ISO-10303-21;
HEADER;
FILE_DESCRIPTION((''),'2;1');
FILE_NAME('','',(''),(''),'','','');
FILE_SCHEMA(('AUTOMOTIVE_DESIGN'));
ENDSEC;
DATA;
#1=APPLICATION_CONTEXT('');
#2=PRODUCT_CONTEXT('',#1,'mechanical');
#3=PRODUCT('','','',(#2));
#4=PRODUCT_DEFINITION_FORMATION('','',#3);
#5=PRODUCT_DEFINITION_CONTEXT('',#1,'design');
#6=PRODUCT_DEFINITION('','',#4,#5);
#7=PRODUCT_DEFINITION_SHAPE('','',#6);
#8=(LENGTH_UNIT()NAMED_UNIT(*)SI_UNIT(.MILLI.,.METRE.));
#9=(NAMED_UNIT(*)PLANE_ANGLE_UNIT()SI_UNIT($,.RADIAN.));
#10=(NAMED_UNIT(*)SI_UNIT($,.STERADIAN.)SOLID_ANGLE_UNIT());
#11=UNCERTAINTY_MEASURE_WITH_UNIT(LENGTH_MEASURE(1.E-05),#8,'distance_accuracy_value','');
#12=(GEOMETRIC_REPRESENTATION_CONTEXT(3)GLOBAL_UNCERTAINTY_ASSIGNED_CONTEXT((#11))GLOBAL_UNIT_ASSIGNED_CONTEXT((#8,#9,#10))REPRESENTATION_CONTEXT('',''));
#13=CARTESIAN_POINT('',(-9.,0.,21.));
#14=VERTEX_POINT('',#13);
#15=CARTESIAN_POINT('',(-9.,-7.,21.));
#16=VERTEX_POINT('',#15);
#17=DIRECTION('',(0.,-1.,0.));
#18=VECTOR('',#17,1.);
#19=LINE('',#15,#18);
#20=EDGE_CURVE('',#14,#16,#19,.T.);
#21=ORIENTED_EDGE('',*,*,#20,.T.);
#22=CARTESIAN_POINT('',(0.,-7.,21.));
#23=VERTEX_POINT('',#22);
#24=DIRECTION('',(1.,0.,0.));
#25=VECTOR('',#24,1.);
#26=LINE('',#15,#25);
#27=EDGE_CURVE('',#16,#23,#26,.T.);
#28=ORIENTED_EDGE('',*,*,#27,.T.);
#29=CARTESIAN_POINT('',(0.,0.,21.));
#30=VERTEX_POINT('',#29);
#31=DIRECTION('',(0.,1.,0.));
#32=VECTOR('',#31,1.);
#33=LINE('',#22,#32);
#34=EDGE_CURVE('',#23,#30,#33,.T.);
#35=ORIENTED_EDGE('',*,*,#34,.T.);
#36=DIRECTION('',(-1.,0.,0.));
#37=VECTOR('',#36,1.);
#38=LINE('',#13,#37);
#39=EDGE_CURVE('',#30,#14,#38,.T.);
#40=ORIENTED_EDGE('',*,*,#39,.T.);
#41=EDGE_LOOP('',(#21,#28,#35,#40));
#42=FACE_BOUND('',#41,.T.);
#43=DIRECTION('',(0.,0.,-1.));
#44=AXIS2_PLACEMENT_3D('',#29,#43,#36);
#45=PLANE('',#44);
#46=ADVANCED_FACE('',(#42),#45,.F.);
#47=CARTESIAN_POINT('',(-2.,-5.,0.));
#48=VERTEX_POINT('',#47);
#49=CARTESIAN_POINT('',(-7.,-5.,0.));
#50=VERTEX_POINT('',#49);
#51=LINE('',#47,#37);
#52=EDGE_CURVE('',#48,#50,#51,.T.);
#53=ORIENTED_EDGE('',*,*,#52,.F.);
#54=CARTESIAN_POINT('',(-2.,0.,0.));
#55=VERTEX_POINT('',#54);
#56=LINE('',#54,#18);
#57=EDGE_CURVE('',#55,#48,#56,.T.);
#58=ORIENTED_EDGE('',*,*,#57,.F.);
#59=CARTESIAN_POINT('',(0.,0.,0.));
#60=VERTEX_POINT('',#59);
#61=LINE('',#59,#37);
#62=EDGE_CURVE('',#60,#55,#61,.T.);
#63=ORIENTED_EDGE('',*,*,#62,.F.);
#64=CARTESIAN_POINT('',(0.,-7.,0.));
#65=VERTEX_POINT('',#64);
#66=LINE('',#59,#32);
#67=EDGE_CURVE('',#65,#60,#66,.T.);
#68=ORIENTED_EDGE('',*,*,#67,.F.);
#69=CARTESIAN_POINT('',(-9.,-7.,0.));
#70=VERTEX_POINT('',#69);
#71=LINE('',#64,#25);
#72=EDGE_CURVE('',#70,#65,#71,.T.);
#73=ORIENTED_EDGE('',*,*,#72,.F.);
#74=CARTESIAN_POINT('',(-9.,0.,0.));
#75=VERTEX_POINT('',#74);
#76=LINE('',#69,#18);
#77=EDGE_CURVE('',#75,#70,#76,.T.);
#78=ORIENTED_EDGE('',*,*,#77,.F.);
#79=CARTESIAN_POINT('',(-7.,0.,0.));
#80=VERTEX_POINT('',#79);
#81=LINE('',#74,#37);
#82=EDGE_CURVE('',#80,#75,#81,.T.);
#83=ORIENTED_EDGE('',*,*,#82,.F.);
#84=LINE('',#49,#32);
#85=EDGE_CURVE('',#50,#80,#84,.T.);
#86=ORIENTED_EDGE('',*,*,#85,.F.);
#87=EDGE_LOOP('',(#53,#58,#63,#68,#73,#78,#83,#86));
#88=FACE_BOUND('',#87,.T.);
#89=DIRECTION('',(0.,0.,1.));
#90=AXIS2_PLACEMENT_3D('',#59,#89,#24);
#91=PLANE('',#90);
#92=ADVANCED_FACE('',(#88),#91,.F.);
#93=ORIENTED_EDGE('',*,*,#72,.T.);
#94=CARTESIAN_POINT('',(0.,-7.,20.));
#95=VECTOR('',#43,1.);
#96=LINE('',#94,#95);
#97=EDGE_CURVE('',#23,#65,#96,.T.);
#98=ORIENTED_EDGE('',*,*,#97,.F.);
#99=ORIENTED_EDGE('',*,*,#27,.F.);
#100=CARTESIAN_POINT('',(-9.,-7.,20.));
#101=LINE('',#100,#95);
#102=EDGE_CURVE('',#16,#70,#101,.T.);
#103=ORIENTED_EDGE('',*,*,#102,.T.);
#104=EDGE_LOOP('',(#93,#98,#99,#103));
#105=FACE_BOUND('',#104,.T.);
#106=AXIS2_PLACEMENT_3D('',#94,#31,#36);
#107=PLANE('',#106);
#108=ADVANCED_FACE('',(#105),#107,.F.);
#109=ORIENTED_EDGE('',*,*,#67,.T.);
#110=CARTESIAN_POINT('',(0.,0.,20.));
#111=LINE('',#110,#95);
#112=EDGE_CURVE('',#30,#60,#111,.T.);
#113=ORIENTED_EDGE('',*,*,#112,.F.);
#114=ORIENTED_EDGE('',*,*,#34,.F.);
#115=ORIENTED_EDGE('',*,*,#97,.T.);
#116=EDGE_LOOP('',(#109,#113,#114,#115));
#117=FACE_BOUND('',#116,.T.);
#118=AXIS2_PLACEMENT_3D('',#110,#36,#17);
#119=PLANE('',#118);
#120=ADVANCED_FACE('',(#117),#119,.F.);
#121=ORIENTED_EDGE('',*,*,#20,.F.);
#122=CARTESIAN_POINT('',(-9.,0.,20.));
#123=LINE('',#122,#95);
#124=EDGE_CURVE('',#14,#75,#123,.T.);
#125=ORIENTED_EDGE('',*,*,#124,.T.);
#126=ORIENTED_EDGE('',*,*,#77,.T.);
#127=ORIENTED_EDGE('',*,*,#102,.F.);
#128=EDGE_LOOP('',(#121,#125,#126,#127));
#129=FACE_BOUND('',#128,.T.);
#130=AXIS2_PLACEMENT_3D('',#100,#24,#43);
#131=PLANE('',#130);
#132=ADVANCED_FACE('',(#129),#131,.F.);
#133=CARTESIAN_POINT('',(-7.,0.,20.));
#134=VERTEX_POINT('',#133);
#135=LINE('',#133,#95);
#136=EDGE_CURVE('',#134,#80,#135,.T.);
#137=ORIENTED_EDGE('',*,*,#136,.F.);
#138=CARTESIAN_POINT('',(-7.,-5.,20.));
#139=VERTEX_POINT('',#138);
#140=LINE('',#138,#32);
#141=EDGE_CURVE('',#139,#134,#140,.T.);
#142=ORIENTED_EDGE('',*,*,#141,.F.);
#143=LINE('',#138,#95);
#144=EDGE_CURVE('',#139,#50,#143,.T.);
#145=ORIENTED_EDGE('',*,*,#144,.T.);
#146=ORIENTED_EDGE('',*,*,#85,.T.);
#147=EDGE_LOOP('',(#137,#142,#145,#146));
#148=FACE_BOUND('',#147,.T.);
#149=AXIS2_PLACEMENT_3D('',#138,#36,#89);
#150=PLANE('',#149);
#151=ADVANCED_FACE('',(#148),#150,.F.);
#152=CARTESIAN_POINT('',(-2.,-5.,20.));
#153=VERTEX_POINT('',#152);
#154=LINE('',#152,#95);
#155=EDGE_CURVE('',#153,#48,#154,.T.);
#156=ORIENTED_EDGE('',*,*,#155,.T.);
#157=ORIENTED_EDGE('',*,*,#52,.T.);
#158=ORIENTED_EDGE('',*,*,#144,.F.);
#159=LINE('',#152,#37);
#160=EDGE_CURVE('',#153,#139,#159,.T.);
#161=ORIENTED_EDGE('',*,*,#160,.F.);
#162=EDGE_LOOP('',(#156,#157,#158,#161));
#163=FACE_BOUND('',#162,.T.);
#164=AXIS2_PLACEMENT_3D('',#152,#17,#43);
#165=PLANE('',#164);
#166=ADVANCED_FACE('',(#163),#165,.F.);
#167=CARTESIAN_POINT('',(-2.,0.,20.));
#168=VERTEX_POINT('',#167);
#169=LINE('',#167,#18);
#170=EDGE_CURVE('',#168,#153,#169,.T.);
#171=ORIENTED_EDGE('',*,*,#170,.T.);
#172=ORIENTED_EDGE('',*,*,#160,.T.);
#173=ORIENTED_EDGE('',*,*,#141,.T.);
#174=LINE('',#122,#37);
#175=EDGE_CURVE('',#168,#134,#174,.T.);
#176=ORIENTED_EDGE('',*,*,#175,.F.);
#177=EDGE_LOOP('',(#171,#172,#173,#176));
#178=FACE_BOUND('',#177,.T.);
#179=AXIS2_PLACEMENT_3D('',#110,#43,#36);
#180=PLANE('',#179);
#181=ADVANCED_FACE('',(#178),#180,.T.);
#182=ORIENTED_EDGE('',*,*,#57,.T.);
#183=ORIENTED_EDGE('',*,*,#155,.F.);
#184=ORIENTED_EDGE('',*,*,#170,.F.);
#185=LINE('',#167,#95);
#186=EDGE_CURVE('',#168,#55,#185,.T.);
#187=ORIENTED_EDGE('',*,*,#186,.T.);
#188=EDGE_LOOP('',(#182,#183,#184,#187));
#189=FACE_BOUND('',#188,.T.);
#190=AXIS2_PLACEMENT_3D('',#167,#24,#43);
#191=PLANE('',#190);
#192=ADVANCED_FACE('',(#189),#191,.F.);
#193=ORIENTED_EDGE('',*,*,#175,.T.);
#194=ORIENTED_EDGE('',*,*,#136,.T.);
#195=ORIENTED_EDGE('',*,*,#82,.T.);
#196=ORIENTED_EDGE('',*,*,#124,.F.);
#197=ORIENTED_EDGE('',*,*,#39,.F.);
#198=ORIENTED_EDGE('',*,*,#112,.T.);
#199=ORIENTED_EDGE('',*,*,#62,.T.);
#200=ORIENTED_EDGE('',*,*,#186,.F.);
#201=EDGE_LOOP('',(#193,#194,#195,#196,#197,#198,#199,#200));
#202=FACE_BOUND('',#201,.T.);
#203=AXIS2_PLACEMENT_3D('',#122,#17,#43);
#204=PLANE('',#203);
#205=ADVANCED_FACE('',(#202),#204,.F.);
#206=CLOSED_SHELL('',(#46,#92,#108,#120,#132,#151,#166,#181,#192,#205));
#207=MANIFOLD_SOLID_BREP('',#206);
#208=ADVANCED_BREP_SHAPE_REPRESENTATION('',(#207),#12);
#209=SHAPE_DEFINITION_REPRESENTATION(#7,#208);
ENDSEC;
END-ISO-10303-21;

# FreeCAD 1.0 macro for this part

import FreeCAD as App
import Part
import Sketcher

doc = App.newDocument("Part")
params = doc.addObject("Spreadsheet::Sheet", "Params")
for row, (alias, value) in enumerate([
    ("sketch1_width", "2 mm"),
    ("sketch1_width2", "5 mm"),
    ("sketch1_height", "7 mm"),
    ("pad1_length", "20 mm"),
    ("sketch2_width", "9 mm"),
    ("sketch2_height", "7 mm"),
    ("pad2_length", "1 mm"),
], start=1):
    params.set(f"A{row}", alias)
    params.set(f"B{row}", "=" + value)
    params.setAlias(f"B{row}", alias)

body = doc.addObject("PartDesign::Body", "Body")

sketch1 = doc.addObject("Sketcher::SketchObject", "Sketch")
body.addObject(sketch1)
sketch1.AttachmentSupport = (doc.XY_Plane, [""])
sketch1.MapMode = "FlatFace"
sketch1.addGeometry([
    Part.LineSegment(App.Vector(0, -7, 0), App.Vector(0, 0, 0)),
    Part.LineSegment(App.Vector(0, 0, 0), App.Vector(-2, 0, 0)),
    Part.LineSegment(App.Vector(-2, 0, 0), App.Vector(-2, -5, 0)),
    Part.LineSegment(App.Vector(-2, -5, 0), App.Vector(-7, -5, 0)),
    Part.LineSegment(App.Vector(-7, -5, 0), App.Vector(-7, 0, 0)),
    Part.LineSegment(App.Vector(-7, 0, 0), App.Vector(-9, 0, 0)),
    Part.LineSegment(App.Vector(-9, 0, 0), App.Vector(-9, -7, 0)),
    Part.LineSegment(App.Vector(-9, -7, 0), App.Vector(0, -7, 0)),
], False)
sketch1.addConstraint([
    Sketcher.Constraint("Coincident", 0, 2, 1, 1),
    Sketcher.Constraint("Coincident", 1, 2, 2, 1),
    Sketcher.Constraint("Coincident", 2, 2, 3, 1),
    Sketcher.Constraint("Coincident", 3, 2, 4, 1),
    Sketcher.Constraint("Coincident", 4, 2, 5, 1),
    Sketcher.Constraint("Coincident", 5, 2, 6, 1),
    Sketcher.Constraint("Coincident", 6, 2, 7, 1),
    Sketcher.Constraint("Coincident", 7, 2, 0, 1),
    Sketcher.Constraint("Vertical", 0),
    Sketcher.Constraint("Horizontal", 1),
    Sketcher.Constraint("Vertical", 2),
    Sketcher.Constraint("Horizontal", 3),
    Sketcher.Constraint("Vertical", 4),
    Sketcher.Constraint("Horizontal", 5),
    Sketcher.Constraint("Vertical", 6),
    Sketcher.Constraint("Horizontal", 7),
    Sketcher.Constraint("Coincident", 0, 2, -1, 1),
    Sketcher.Constraint("PointOnObject", 4, 2, -1),
    Sketcher.Constraint("Equal", 1, 5),
    Sketcher.Constraint("Equal", 3, 2),
    Sketcher.Constraint("DistanceX", 1, 2, 1, 1, 2.0),
    Sketcher.Constraint("DistanceX", 3, 2, 3, 1, 5.0),
    Sketcher.Constraint("DistanceY", 0, 1, 0, 2, 7.0),
])
sketch1.setExpression("Constraints[20]", "Params.sketch1_width")
sketch1.setExpression("Constraints[21]", "Params.sketch1_width2")
sketch1.setExpression("Constraints[22]", "Params.sketch1_height")
pad1 = doc.addObject("PartDesign::Pad", "Pad")
body.addObject(pad1)
pad1.Profile = sketch1
pad1.setExpression("Length", "Params.pad1_length")

sketch2 = doc.addObject("Sketcher::SketchObject", "Sketch001")
body.addObject(sketch2)
sketch2.AttachmentSupport = (doc.XY_Plane, [""])
sketch2.MapMode = "FlatFace"
sketch2.AttachmentOffset = App.Placement(App.Vector(0, 0, 20), App.Rotation())
sketch2.addGeometry([
    Part.LineSegment(App.Vector(-9, 0, 0), App.Vector(-9, -7, 0)),
    Part.LineSegment(App.Vector(-9, -7, 0), App.Vector(0, -7, 0)),
    Part.LineSegment(App.Vector(0, -7, 0), App.Vector(0, 0, 0)),
    Part.LineSegment(App.Vector(0, 0, 0), App.Vector(-9, 0, 0)),
], False)
sketch2.addConstraint([
    Sketcher.Constraint("Coincident", 0, 2, 1, 1),
    Sketcher.Constraint("Coincident", 1, 2, 2, 1),
    Sketcher.Constraint("Coincident", 2, 2, 3, 1),
    Sketcher.Constraint("Coincident", 3, 2, 0, 1),
    Sketcher.Constraint("Vertical", 0),
    Sketcher.Constraint("Horizontal", 1),
    Sketcher.Constraint("Vertical", 2),
    Sketcher.Constraint("Horizontal", 3),
    Sketcher.Constraint("Coincident", 2, 2, -1, 1),
    Sketcher.Constraint("DistanceX", 1, 1, 1, 2, 9.0),
    Sketcher.Constraint("DistanceY", 0, 2, 0, 1, 7.0),
])
sketch2.setExpression("Constraints[9]", "Params.sketch2_width")
sketch2.setExpression("Constraints[10]", "Params.sketch2_height")
pad2 = doc.addObject("PartDesign::Pad", "Pad001")
body.addObject(pad2)
pad2.Profile = sketch2
pad2.setExpression("Length", "Params.pad2_length")

doc.recompute()
